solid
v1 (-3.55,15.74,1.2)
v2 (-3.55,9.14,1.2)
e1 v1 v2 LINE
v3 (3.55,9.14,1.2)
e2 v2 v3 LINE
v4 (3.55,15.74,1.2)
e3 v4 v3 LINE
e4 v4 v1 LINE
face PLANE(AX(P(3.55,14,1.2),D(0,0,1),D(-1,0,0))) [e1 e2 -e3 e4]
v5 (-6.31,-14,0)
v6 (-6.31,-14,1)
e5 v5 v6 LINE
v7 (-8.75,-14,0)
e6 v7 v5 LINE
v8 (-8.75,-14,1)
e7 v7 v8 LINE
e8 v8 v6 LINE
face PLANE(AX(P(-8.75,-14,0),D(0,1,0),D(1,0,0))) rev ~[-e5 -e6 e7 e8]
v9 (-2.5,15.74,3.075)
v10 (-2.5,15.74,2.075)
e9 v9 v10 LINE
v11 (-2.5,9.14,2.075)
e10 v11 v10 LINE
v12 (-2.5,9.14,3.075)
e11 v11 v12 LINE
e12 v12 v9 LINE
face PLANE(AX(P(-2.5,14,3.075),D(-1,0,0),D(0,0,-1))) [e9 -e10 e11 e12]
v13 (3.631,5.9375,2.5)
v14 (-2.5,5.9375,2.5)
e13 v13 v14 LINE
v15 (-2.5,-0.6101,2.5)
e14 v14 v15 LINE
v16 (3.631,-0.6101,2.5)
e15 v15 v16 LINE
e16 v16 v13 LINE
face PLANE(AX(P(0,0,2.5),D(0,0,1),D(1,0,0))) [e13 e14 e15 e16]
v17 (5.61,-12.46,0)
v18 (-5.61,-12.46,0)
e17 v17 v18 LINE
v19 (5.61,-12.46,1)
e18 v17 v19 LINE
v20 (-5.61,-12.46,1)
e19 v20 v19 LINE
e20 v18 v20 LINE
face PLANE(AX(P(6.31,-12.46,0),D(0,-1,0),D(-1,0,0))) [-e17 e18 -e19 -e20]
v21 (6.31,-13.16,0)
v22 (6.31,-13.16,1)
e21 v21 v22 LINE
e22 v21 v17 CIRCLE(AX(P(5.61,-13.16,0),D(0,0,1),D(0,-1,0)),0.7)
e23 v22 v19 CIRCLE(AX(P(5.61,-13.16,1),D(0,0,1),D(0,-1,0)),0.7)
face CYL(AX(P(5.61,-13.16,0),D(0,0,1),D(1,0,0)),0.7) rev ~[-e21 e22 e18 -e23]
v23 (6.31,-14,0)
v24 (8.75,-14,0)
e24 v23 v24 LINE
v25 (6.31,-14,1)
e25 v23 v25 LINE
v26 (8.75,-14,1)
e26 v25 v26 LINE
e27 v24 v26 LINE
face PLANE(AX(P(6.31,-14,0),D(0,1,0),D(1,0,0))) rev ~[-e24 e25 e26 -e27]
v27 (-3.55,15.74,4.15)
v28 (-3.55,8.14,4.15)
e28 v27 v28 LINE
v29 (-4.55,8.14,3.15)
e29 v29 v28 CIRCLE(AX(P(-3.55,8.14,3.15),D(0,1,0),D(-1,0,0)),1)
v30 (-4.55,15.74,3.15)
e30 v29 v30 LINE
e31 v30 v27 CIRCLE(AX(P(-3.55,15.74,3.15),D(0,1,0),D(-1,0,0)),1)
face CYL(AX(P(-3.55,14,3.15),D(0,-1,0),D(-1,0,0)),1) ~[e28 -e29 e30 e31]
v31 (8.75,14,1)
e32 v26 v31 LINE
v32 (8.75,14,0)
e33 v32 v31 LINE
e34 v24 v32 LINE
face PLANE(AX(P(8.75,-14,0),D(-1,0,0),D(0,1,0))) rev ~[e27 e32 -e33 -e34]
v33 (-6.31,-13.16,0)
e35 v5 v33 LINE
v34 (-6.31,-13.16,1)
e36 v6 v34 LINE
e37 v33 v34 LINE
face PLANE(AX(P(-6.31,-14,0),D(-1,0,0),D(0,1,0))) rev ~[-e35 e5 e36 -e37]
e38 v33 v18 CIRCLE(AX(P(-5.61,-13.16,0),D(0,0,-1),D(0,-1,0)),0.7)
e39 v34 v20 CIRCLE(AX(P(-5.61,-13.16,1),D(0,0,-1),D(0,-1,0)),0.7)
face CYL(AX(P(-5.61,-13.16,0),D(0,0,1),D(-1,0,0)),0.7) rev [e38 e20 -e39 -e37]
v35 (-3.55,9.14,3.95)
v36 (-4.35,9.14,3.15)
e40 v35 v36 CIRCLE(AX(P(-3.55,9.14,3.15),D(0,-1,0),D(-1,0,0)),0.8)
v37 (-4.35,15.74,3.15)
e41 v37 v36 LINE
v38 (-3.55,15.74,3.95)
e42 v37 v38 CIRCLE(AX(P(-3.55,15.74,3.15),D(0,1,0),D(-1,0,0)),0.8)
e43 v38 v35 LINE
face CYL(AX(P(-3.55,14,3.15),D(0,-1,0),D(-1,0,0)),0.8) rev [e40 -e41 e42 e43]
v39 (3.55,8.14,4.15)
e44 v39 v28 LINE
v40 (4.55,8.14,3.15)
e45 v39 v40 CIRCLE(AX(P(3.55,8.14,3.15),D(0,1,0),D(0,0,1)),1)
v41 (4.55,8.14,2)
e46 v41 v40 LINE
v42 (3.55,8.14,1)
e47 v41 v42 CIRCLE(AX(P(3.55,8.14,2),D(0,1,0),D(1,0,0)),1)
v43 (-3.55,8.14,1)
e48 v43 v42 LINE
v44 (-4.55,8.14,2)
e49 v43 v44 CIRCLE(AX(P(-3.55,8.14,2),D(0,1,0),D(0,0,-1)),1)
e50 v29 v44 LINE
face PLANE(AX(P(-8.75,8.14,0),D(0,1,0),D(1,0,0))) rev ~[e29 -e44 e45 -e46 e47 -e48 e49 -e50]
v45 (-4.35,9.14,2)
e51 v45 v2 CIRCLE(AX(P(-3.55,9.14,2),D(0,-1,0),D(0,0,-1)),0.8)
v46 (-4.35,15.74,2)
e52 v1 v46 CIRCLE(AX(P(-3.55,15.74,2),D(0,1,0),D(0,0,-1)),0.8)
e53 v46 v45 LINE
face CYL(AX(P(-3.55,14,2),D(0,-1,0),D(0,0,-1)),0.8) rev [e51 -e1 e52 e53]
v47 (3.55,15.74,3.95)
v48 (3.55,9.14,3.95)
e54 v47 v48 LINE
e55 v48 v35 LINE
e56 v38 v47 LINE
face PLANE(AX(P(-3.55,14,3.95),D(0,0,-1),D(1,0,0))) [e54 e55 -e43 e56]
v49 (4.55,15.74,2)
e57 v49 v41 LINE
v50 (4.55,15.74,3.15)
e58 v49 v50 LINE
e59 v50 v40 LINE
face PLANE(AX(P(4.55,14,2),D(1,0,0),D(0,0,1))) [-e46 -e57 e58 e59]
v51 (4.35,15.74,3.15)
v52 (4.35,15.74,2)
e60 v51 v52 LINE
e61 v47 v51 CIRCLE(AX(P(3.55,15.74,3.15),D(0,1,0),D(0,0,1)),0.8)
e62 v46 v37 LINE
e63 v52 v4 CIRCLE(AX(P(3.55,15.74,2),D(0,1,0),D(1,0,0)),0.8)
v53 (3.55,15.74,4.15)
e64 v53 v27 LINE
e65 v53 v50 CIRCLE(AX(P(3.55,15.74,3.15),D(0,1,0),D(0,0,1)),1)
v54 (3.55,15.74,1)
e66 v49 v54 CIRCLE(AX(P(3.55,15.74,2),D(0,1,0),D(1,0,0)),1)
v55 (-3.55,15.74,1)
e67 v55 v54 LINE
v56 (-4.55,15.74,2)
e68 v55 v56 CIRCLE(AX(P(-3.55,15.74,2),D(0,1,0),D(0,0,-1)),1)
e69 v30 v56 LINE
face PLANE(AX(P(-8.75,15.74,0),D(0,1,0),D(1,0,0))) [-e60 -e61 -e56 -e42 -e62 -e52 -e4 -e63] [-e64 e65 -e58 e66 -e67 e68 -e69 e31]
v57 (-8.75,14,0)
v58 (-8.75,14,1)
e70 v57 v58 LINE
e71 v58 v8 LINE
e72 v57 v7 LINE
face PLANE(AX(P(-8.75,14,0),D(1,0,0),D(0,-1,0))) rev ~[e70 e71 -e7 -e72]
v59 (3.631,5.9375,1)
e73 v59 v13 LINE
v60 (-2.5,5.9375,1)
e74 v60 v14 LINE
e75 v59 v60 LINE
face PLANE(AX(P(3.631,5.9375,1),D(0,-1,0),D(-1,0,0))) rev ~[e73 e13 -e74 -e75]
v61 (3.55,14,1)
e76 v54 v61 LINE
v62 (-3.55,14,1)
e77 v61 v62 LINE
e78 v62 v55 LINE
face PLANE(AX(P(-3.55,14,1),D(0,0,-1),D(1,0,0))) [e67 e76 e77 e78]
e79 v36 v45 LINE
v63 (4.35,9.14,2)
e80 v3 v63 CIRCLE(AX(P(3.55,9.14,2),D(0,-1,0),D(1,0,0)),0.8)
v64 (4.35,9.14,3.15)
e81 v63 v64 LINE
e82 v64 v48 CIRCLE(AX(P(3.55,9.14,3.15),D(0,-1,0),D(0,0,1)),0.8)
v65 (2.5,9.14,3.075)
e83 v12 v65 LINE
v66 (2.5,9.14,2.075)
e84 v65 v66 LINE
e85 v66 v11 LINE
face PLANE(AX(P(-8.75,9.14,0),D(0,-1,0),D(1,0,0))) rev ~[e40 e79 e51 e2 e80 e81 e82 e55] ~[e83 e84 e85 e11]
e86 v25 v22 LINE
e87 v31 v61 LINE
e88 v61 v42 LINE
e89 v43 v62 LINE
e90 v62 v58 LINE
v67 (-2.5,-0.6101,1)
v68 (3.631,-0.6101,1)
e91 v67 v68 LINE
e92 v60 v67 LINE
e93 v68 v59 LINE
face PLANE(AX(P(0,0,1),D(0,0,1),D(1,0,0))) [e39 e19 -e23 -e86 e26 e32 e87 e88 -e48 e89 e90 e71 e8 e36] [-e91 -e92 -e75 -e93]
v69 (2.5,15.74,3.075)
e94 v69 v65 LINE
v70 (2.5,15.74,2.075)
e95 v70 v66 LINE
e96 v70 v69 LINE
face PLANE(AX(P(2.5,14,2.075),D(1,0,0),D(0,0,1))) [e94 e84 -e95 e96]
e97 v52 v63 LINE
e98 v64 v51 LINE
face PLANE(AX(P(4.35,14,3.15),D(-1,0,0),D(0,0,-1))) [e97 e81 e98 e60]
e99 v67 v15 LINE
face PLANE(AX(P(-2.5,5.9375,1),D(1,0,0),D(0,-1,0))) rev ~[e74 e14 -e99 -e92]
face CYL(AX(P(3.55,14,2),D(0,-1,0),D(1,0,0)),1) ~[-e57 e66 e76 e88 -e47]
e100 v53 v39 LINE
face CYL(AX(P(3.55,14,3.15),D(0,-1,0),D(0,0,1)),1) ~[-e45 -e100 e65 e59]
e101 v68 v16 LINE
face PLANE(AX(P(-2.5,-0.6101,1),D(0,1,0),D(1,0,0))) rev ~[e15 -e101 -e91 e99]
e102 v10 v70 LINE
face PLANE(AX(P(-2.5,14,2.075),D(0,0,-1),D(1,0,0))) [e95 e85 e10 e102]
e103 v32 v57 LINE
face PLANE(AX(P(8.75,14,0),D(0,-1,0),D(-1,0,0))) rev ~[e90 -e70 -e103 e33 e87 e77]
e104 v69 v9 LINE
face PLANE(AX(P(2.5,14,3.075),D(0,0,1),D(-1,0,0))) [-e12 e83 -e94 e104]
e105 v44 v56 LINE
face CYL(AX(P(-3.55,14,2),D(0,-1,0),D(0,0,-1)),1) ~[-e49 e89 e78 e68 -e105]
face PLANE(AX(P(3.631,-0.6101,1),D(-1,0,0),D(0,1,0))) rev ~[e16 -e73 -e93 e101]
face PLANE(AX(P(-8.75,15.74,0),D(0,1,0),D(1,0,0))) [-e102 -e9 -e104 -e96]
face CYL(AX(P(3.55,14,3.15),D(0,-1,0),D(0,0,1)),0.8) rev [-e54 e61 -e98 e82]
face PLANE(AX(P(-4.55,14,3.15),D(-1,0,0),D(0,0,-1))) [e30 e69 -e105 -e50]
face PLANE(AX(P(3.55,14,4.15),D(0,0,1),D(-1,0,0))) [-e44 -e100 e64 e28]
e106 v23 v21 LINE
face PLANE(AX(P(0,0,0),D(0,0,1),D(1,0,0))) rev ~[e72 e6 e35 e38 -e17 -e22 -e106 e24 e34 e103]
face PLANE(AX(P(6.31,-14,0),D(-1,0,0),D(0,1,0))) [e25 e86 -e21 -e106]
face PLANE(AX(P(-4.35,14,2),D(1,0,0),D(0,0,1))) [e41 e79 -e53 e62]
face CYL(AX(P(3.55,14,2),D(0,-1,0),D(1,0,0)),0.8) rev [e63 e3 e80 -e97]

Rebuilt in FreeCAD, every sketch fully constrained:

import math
import FreeCAD as App
import Part
import Sketcher
from FreeCAD import Vector


def edges_at(feature, points):
    """Names of the edges that pass closest to the given points."""
    edges = feature.Shape.Edges
    near = lambda p: min(range(len(edges)), key=lambda i: edges[i].distToShape(Part.Vertex(*p))[0])
    return sorted({f"Edge{near(p) + 1}" for p in points})

doc = App.newDocument("Part")
params = doc.addObject("Spreadsheet::Sheet", "Params")
for row, (alias, value) in enumerate([
    ("sketch1_height", "28 mm"),
    ("sketch1_width", "17.5 mm"),
    ("sketch1_width2", "2.44 mm"),
    ("sketch1_height2", "1.54 mm"),
    ("pad1_length", "1 mm"),
    ("sketch2_radius", "1 mm"),
    ("sketch2_width", "5 mm"),
    ("sketch2_height", "1 mm"),
    ("sketch2_radius2", "0.8 mm"),
    ("sketch2_width2", "7.1 mm"),
    ("pad2_length", "1.74 mm"),
    ("pad2_length2", "5.86 mm"),
    ("fillet_radius", "0.7 mm"),
    ("sketch3_radius", "1 mm"),
    ("sketch3_width", "7.1 mm"),
    ("sketch3_height", "1.15 mm"),
    ("pad3_length", "1 mm"),
    ("pad4_length", "1.5 mm"),
], start=1):
    params.set(f"A{row}", alias)
    params.set(f"B{row}", "=" + value)
    params.setAlias(f"B{row}", alias)

body = doc.addObject("PartDesign::Body", "Body")
body.AllowCompound = True

# Sketch on XY plane
sketch1 = body.newObject("Sketcher::SketchObject", "Sketch")
sketch1.AttachmentSupport = (doc.getObject("XY_Plane"), [""])
sketch1.MapMode = "FlatFace"
sketch1.addGeometry(Part.LineSegment(Vector(-8.8, 14, 0), Vector(-8.8, -14, 0)), False)
sketch1.addGeometry(Part.LineSegment(Vector(-8.8, -14, 0), Vector(-6.3, -14, 0)), False)
sketch1.addGeometry(Part.LineSegment(Vector(-6.3, -14, 0), Vector(-6.3, -12.5, 0)), False)
sketch1.addGeometry(Part.LineSegment(Vector(-6.3, -12.5, 0), Vector(6.3, -12.5, 0)), False)
sketch1.addGeometry(Part.LineSegment(Vector(6.3, -12.5, 0), Vector(6.3, -14, 0)), False)
sketch1.addGeometry(Part.LineSegment(Vector(6.3, -14, 0), Vector(8.8, -14, 0)), False)
sketch1.addGeometry(Part.LineSegment(Vector(8.8, -14, 0), Vector(8.8, 14, 0)), False)
sketch1.addGeometry(Part.LineSegment(Vector(8.8, 14, 0), Vector(-8.8, 14, 0)), False)
sketch1.addConstraint(Sketcher.Constraint("Coincident", 0, 2, 1, 1))
sketch1.addConstraint(Sketcher.Constraint("Coincident", 1, 2, 2, 1))
sketch1.addConstraint(Sketcher.Constraint("Coincident", 2, 2, 3, 1))
sketch1.addConstraint(Sketcher.Constraint("Coincident", 3, 2, 4, 1))
sketch1.addConstraint(Sketcher.Constraint("Coincident", 4, 2, 5, 1))
sketch1.addConstraint(Sketcher.Constraint("Coincident", 5, 2, 6, 1))
sketch1.addConstraint(Sketcher.Constraint("Coincident", 6, 2, 7, 1))
sketch1.addConstraint(Sketcher.Constraint("Coincident", 7, 2, 0, 1))
sketch1.addConstraint(Sketcher.Constraint("Vertical", 0))
sketch1.addConstraint(Sketcher.Constraint("Horizontal", 1))
sketch1.addConstraint(Sketcher.Constraint("Vertical", 2))
sketch1.addConstraint(Sketcher.Constraint("Horizontal", 3))
sketch1.addConstraint(Sketcher.Constraint("Vertical", 4))
sketch1.addConstraint(Sketcher.Constraint("Horizontal", 5))
sketch1.addConstraint(Sketcher.Constraint("Vertical", 6))
sketch1.addConstraint(Sketcher.Constraint("Horizontal", 7))
sketch1.addConstraint(Sketcher.Constraint("Symmetric", 0, 2, 6, 2, -1, 1))
sketch1.addConstraint(Sketcher.Constraint("Symmetric", 1, 2, 4, 2, -2))
sketch1.addConstraint(Sketcher.Constraint("DistanceY", 0, 2, 0, 1, 28.0))
sketch1.addConstraint(Sketcher.Constraint("DistanceX", 7, 2, 7, 1, 17.5))
sketch1.addConstraint(Sketcher.Constraint("DistanceX", 1, 1, 1, 2, 2.44))
sketch1.addConstraint(Sketcher.Constraint("DistanceY", 2, 1, 2, 2, 1.54))
sketch1.setExpression("Constraints[18]", "Params.sketch1_height")
sketch1.setExpression("Constraints[19]", "Params.sketch1_width")
sketch1.setExpression("Constraints[20]", "Params.sketch1_width2")
sketch1.setExpression("Constraints[21]", "Params.sketch1_height2")
pad1 = body.newObject("PartDesign::Pad", "Pad")
pad1.Profile = sketch1
pad1.setExpression("Length", "Params.pad1_length")

# Sketch on XZ plane
sketch2 = body.newObject("Sketcher::SketchObject", "Sketch001")
sketch2.AttachmentSupport = (doc.getObject("XZ_Plane"), [""])
sketch2.MapMode = "FlatFace"
sketch2.AttachmentOffset = App.Placement(Vector(0, 0, -14), App.Rotation())
sketch2.addGeometry(Part.LineSegment(Vector(3.5, 1, 0), Vector(-3.5, 1, 0)), False)
sketch2.addGeometry(Part.ArcOfCircle(Part.Circle(Vector(-3.5, 2, 0), Vector(0, 0, 1), 1), math.radians(180), math.radians(270)), False)
sketch2.addGeometry(Part.LineSegment(Vector(-4.5, 2, 0), Vector(-4.5, 3.1, 0)), False)
sketch2.addGeometry(Part.ArcOfCircle(Part.Circle(Vector(-3.5, 3.1, 0), Vector(0, 0, 1), 1), math.radians(90), math.radians(180)), False)
sketch2.addGeometry(Part.LineSegment(Vector(-3.5, 4.2, 0), Vector(3.5, 4.2, 0)), False)
sketch2.addGeometry(Part.ArcOfCircle(Part.Circle(Vector(3.5, 3.1, 0), Vector(0, 0, 1), 1), math.radians(0), math.radians(90)), False)
sketch2.addGeometry(Part.LineSegment(Vector(4.5, 3.1, 0), Vector(4.5, 2, 0)), False)
sketch2.addGeometry(Part.ArcOfCircle(Part.Circle(Vector(3.5, 2, 0), Vector(0, 0, 1), 1), math.radians(-90), math.radians(0)), False)
sketch2.addGeometry(Part.LineSegment(Vector(4.3, 2, 0), Vector(4.3, 3.1, 0)), False)
sketch2.addGeometry(Part.ArcOfCircle(Part.Circle(Vector(3.5, 3.1, 0), Vector(0, 0, 1), 0.8), math.radians(0), math.radians(90)), False)
sketch2.addGeometry(Part.LineSegment(Vector(3.5, 4, 0), Vector(-3.5, 4, 0)), False)
sketch2.addGeometry(Part.ArcOfCircle(Part.Circle(Vector(-3.5, 3.1, 0), Vector(0, 0, 1), 0.8), math.radians(90), math.radians(180)), False)
sketch2.addGeometry(Part.LineSegment(Vector(-4.3, 3.1, 0), Vector(-4.3, 2, 0)), False)
sketch2.addGeometry(Part.ArcOfCircle(Part.Circle(Vector(-3.5, 2, 0), Vector(0, 0, 1), 0.8), math.radians(180), math.radians(270)), False)
sketch2.addGeometry(Part.LineSegment(Vector(-3.5, 1.2, 0), Vector(3.5, 1.2, 0)), False)
sketch2.addGeometry(Part.ArcOfCircle(Part.Circle(Vector(3.5, 2, 0), Vector(0, 0, 1), 0.8), math.radians(-90), math.radians(0)), False)
sketch2.addGeometry(Part.LineSegment(Vector(2.5, 2.1, 0), Vector(-2.5, 2.1, 0)), False)
sketch2.addGeometry(Part.LineSegment(Vector(-2.5, 2.1, 0), Vector(-2.5, 3.1, 0)), False)
sketch2.addGeometry(Part.LineSegment(Vector(-2.5, 3.1, 0), Vector(2.5, 3.1, 0)), False)
sketch2.addGeometry(Part.LineSegment(Vector(2.5, 3.1, 0), Vector(2.5, 2.1, 0)), False)
sketch2.addConstraint(Sketcher.Constraint("Tangent", 0, 2, 1, 2))
sketch2.addConstraint(Sketcher.Constraint("Tangent", 1, 1, 2, 1))
sketch2.addConstraint(Sketcher.Constraint("Tangent", 2, 2, 3, 2))
sketch2.addConstraint(Sketcher.Constraint("Tangent", 3, 1, 4, 1))
sketch2.addConstraint(Sketcher.Constraint("Tangent", 4, 2, 5, 2))
sketch2.addConstraint(Sketcher.Constraint("Tangent", 5, 1, 6, 1))
sketch2.addConstraint(Sketcher.Constraint("Tangent", 6, 2, 7, 2))
sketch2.addConstraint(Sketcher.Constraint("Tangent", 7, 1, 0, 1))
sketch2.addConstraint(Sketcher.Constraint("Tangent", 8, 2, 9, 1))
sketch2.addConstraint(Sketcher.Constraint("Tangent", 9, 2, 10, 1))
sketch2.addConstraint(Sketcher.Constraint("Tangent", 10, 2, 11, 1))
sketch2.addConstraint(Sketcher.Constraint("Tangent", 11, 2, 12, 1))
sketch2.addConstraint(Sketcher.Constraint("Tangent", 12, 2, 13, 1))
sketch2.addConstraint(Sketcher.Constraint("Tangent", 13, 2, 14, 1))
sketch2.addConstraint(Sketcher.Constraint("Tangent", 14, 2, 15, 1))
sketch2.addConstraint(Sketcher.Constraint("Tangent", 15, 2, 8, 1))
sketch2.addConstraint(Sketcher.Constraint("Coincident", 16, 2, 17, 1))
sketch2.addConstraint(Sketcher.Constraint("Coincident", 17, 2, 18, 1))
sketch2.addConstraint(Sketcher.Constraint("Coincident", 18, 2, 19, 1))
sketch2.addConstraint(Sketcher.Constraint("Coincident", 19, 2, 16, 1))
sketch2.addConstraint(Sketcher.Constraint("Horizontal", 0))
sketch2.addConstraint(Sketcher.Constraint("Vertical", 2))
sketch2.addConstraint(Sketcher.Constraint("Horizontal", 4))
sketch2.addConstraint(Sketcher.Constraint("Vertical", 6))
sketch2.addConstraint(Sketcher.Constraint("Vertical", 8))
sketch2.addConstraint(Sketcher.Constraint("Horizontal", 10))
sketch2.addConstraint(Sketcher.Constraint("Vertical", 12))
sketch2.addConstraint(Sketcher.Constraint("Horizontal", 14))
sketch2.addConstraint(Sketcher.Constraint("Horizontal", 16))
sketch2.addConstraint(Sketcher.Constraint("Vertical", 17))
sketch2.addConstraint(Sketcher.Constraint("Horizontal", 18))
sketch2.addConstraint(Sketcher.Constraint("Vertical", 19))
sketch2.addConstraint(Sketcher.Constraint("Coincident", 9, 3, 5, 3))
sketch2.addConstraint(Sketcher.Constraint("Coincident", 11, 3, 3, 3))
sketch2.addConstraint(Sketcher.Constraint("Coincident", 13, 3, 1, 3))
sketch2.addConstraint(Sketcher.Constraint("Equal", 1, 3))
sketch2.addConstraint(Sketcher.Constraint("Equal", 3, 5))
sketch2.addConstraint(Sketcher.Constraint("Equal", 5, 7))
sketch2.addConstraint(Sketcher.Constraint("Equal", 13, 15))
sketch2.addConstraint(Sketcher.Constraint("Radius", 1, 1.0))
sketch2.addConstraint(Sketcher.Constraint("DistanceX", 16, 2, 16, 1, 5.0))
sketch2.addConstraint(Sketcher.Constraint("DistanceY", 17, 1, 17, 2, 1.0))
sketch2.addConstraint(Sketcher.Constraint("DistanceY", -1, 1, 0, 2, 1.0))
sketch2.addConstraint(Sketcher.Constraint("Radius", 9, 0.8))
sketch2.addConstraint(Sketcher.Constraint("DistanceY", -1, 1, 3, 3, 3.15))
sketch2.addConstraint(Sketcher.Constraint("DistanceX", 0, 2, 0, 1, 7.1))
sketch2.addConstraint(Sketcher.Constraint("DistanceX", 16, 2, -1, 1, 2.5))
sketch2.addConstraint(Sketcher.Constraint("DistanceX", 1, 3, -1, 1, 3.55))
sketch2.addConstraint(Sketcher.Constraint("DistanceY", -1, 1, 16, 2, 2.075))
sketch2.setExpression("Constraints[39]", "Params.sketch2_radius")
sketch2.setExpression("Constraints[40]", "Params.sketch2_width")
sketch2.setExpression("Constraints[41]", "Params.sketch2_height")
sketch2.setExpression("Constraints[43]", "Params.sketch2_radius2")
sketch2.setExpression("Constraints[45]", "Params.sketch2_width2")
pad2 = body.newObject("PartDesign::Pad", "Pad001")
pad2.Profile = sketch2
pad2.Type = "TwoLengths"
pad2.setExpression("Length", "Params.pad2_length")
pad2.setExpression("Length2", "Params.pad2_length2")
pad2.Reversed = True
doc.recompute()

fillet = body.newObject("PartDesign::Fillet", "Fillet")
fillet.Base = (pad2, edges_at(pad2, [(6.31, -12.46, 0.5), (-6.31, -12.46, 0.5)]))
fillet.setExpression("Radius", "Params.fillet_radius")

# Sketch on XZ plane
sketch3 = body.newObject("Sketcher::SketchObject", "Sketch002")
sketch3.AttachmentSupport = (doc.getObject("XZ_Plane"), [""])
sketch3.MapMode = "FlatFace"
sketch3.AttachmentOffset = App.Placement(Vector(0, 0, -8.14), App.Rotation())
sketch3.addGeometry(Part.ArcOfCircle(Part.Circle(Vector(3.5, 3.1, 0), Vector(0, 0, 1), 1), math.radians(0), math.radians(90)), False)
sketch3.addGeometry(Part.LineSegment(Vector(3.5, 4.2, 0), Vector(-3.5, 4.2, 0)), False)
sketch3.addGeometry(Part.ArcOfCircle(Part.Circle(Vector(-3.5, 3.1, 0), Vector(0, 0, 1), 1), math.radians(90), math.radians(180)), False)
sketch3.addGeometry(Part.LineSegment(Vector(-4.5, 3.1, 0), Vector(-4.5, 2, 0)), False)
sketch3.addGeometry(Part.ArcOfCircle(Part.Circle(Vector(-3.5, 2, 0), Vector(0, 0, 1), 1), math.radians(180), math.radians(270)), False)
sketch3.addGeometry(Part.LineSegment(Vector(-3.5, 1, 0), Vector(3.5, 1, 0)), False)
sketch3.addGeometry(Part.ArcOfCircle(Part.Circle(Vector(3.5, 2, 0), Vector(0, 0, 1), 1), math.radians(-90), math.radians(0)), False)
sketch3.addGeometry(Part.LineSegment(Vector(4.5, 2, 0), Vector(4.5, 3.1, 0)), False)
sketch3.addConstraint(Sketcher.Constraint("Tangent", 0, 2, 1, 1))
sketch3.addConstraint(Sketcher.Constraint("Tangent", 1, 2, 2, 1))
sketch3.addConstraint(Sketcher.Constraint("Tangent", 2, 2, 3, 1))
sketch3.addConstraint(Sketcher.Constraint("Tangent", 3, 2, 4, 1))
sketch3.addConstraint(Sketcher.Constraint("Tangent", 4, 2, 5, 1))
sketch3.addConstraint(Sketcher.Constraint("Tangent", 5, 2, 6, 1))
sketch3.addConstraint(Sketcher.Constraint("Tangent", 6, 2, 7, 1))
sketch3.addConstraint(Sketcher.Constraint("Tangent", 7, 2, 0, 1))
sketch3.addConstraint(Sketcher.Constraint("Horizontal", 1))
sketch3.addConstraint(Sketcher.Constraint("Vertical", 3))
sketch3.addConstraint(Sketcher.Constraint("Horizontal", 5))
sketch3.addConstraint(Sketcher.Constraint("Vertical", 7))
sketch3.addConstraint(Sketcher.Constraint("Equal", 0, 2))
sketch3.addConstraint(Sketcher.Constraint("Equal", 2, 4))
sketch3.addConstraint(Sketcher.Constraint("Equal", 4, 6))
sketch3.addConstraint(Sketcher.Constraint("Radius", 0, 1.0))
sketch3.addConstraint(Sketcher.Constraint("DistanceX", 1, 2, 1, 1, 7.1))
sketch3.addConstraint(Sketcher.Constraint("DistanceY", -1, 1, 4, 3, 2.0))
sketch3.addConstraint(Sketcher.Constraint("DistanceY", 3, 2, 3, 1, 1.15))
sketch3.addConstraint(Sketcher.Constraint("DistanceX", -1, 1, 0, 3, 3.55))
sketch3.setExpression("Constraints[15]", "Params.sketch3_radius")
sketch3.setExpression("Constraints[16]", "Params.sketch3_width")
sketch3.setExpression("Constraints[18]", "Params.sketch3_height")
pad3 = body.newObject("PartDesign::Pad", "Pad002")
pad3.Profile = sketch3
pad3.setExpression("Length", "Params.pad3_length")
pad3.Reversed = True

# Sketch on XY plane
sketch4 = body.newObject("Sketcher::SketchObject", "Sketch003")
sketch4.AttachmentSupport = (doc.getObject("XY_Plane"), [""])
sketch4.MapMode = "FlatFace"
sketch4.AttachmentOffset = App.Placement(Vector(0, 0, 1), App.Rotation())
sketch4.addGeometry(Part.LineSegment(Vector(4, -1, 0), Vector(4, 6, 0)), False)
sketch4.addGeometry(Part.LineSegment(Vector(4, 6, 0), Vector(-2, 6, 0)), False)
sketch4.addGeometry(Part.LineSegment(Vector(-2, 6, 0), Vector(-2, -1, 0)), False)
sketch4.addGeometry(Part.LineSegment(Vector(-2, -1, 0), Vector(4, -1, 0)), False)
sketch4.addConstraint(Sketcher.Constraint("Coincident", 0, 2, 1, 1))
sketch4.addConstraint(Sketcher.Constraint("Coincident", 1, 2, 2, 1))
sketch4.addConstraint(Sketcher.Constraint("Coincident", 2, 2, 3, 1))
sketch4.addConstraint(Sketcher.Constraint("Coincident", 3, 2, 0, 1))
sketch4.addConstraint(Sketcher.Constraint("Vertical", 0))
sketch4.addConstraint(Sketcher.Constraint("Horizontal", 1))
sketch4.addConstraint(Sketcher.Constraint("Vertical", 2))
sketch4.addConstraint(Sketcher.Constraint("Horizontal", 3))
sketch4.addConstraint(Sketcher.Constraint("DistanceX", 1, 2, -1, 1, 2.5))
sketch4.addConstraint(Sketcher.Constraint("DistanceX", 1, 2, 1, 1, 6.131))
sketch4.addConstraint(Sketcher.Constraint("DistanceY", 2, 2, -1, 1, 0.61))
sketch4.addConstraint(Sketcher.Constraint("DistanceY", 0, 1, 0, 2, 6.5476))
pad4 = body.newObject("PartDesign::Pad", "Pad003")
pad4.Profile = sketch4
pad4.setExpression("Length", "Params.pad4_length")

doc.recompute()
